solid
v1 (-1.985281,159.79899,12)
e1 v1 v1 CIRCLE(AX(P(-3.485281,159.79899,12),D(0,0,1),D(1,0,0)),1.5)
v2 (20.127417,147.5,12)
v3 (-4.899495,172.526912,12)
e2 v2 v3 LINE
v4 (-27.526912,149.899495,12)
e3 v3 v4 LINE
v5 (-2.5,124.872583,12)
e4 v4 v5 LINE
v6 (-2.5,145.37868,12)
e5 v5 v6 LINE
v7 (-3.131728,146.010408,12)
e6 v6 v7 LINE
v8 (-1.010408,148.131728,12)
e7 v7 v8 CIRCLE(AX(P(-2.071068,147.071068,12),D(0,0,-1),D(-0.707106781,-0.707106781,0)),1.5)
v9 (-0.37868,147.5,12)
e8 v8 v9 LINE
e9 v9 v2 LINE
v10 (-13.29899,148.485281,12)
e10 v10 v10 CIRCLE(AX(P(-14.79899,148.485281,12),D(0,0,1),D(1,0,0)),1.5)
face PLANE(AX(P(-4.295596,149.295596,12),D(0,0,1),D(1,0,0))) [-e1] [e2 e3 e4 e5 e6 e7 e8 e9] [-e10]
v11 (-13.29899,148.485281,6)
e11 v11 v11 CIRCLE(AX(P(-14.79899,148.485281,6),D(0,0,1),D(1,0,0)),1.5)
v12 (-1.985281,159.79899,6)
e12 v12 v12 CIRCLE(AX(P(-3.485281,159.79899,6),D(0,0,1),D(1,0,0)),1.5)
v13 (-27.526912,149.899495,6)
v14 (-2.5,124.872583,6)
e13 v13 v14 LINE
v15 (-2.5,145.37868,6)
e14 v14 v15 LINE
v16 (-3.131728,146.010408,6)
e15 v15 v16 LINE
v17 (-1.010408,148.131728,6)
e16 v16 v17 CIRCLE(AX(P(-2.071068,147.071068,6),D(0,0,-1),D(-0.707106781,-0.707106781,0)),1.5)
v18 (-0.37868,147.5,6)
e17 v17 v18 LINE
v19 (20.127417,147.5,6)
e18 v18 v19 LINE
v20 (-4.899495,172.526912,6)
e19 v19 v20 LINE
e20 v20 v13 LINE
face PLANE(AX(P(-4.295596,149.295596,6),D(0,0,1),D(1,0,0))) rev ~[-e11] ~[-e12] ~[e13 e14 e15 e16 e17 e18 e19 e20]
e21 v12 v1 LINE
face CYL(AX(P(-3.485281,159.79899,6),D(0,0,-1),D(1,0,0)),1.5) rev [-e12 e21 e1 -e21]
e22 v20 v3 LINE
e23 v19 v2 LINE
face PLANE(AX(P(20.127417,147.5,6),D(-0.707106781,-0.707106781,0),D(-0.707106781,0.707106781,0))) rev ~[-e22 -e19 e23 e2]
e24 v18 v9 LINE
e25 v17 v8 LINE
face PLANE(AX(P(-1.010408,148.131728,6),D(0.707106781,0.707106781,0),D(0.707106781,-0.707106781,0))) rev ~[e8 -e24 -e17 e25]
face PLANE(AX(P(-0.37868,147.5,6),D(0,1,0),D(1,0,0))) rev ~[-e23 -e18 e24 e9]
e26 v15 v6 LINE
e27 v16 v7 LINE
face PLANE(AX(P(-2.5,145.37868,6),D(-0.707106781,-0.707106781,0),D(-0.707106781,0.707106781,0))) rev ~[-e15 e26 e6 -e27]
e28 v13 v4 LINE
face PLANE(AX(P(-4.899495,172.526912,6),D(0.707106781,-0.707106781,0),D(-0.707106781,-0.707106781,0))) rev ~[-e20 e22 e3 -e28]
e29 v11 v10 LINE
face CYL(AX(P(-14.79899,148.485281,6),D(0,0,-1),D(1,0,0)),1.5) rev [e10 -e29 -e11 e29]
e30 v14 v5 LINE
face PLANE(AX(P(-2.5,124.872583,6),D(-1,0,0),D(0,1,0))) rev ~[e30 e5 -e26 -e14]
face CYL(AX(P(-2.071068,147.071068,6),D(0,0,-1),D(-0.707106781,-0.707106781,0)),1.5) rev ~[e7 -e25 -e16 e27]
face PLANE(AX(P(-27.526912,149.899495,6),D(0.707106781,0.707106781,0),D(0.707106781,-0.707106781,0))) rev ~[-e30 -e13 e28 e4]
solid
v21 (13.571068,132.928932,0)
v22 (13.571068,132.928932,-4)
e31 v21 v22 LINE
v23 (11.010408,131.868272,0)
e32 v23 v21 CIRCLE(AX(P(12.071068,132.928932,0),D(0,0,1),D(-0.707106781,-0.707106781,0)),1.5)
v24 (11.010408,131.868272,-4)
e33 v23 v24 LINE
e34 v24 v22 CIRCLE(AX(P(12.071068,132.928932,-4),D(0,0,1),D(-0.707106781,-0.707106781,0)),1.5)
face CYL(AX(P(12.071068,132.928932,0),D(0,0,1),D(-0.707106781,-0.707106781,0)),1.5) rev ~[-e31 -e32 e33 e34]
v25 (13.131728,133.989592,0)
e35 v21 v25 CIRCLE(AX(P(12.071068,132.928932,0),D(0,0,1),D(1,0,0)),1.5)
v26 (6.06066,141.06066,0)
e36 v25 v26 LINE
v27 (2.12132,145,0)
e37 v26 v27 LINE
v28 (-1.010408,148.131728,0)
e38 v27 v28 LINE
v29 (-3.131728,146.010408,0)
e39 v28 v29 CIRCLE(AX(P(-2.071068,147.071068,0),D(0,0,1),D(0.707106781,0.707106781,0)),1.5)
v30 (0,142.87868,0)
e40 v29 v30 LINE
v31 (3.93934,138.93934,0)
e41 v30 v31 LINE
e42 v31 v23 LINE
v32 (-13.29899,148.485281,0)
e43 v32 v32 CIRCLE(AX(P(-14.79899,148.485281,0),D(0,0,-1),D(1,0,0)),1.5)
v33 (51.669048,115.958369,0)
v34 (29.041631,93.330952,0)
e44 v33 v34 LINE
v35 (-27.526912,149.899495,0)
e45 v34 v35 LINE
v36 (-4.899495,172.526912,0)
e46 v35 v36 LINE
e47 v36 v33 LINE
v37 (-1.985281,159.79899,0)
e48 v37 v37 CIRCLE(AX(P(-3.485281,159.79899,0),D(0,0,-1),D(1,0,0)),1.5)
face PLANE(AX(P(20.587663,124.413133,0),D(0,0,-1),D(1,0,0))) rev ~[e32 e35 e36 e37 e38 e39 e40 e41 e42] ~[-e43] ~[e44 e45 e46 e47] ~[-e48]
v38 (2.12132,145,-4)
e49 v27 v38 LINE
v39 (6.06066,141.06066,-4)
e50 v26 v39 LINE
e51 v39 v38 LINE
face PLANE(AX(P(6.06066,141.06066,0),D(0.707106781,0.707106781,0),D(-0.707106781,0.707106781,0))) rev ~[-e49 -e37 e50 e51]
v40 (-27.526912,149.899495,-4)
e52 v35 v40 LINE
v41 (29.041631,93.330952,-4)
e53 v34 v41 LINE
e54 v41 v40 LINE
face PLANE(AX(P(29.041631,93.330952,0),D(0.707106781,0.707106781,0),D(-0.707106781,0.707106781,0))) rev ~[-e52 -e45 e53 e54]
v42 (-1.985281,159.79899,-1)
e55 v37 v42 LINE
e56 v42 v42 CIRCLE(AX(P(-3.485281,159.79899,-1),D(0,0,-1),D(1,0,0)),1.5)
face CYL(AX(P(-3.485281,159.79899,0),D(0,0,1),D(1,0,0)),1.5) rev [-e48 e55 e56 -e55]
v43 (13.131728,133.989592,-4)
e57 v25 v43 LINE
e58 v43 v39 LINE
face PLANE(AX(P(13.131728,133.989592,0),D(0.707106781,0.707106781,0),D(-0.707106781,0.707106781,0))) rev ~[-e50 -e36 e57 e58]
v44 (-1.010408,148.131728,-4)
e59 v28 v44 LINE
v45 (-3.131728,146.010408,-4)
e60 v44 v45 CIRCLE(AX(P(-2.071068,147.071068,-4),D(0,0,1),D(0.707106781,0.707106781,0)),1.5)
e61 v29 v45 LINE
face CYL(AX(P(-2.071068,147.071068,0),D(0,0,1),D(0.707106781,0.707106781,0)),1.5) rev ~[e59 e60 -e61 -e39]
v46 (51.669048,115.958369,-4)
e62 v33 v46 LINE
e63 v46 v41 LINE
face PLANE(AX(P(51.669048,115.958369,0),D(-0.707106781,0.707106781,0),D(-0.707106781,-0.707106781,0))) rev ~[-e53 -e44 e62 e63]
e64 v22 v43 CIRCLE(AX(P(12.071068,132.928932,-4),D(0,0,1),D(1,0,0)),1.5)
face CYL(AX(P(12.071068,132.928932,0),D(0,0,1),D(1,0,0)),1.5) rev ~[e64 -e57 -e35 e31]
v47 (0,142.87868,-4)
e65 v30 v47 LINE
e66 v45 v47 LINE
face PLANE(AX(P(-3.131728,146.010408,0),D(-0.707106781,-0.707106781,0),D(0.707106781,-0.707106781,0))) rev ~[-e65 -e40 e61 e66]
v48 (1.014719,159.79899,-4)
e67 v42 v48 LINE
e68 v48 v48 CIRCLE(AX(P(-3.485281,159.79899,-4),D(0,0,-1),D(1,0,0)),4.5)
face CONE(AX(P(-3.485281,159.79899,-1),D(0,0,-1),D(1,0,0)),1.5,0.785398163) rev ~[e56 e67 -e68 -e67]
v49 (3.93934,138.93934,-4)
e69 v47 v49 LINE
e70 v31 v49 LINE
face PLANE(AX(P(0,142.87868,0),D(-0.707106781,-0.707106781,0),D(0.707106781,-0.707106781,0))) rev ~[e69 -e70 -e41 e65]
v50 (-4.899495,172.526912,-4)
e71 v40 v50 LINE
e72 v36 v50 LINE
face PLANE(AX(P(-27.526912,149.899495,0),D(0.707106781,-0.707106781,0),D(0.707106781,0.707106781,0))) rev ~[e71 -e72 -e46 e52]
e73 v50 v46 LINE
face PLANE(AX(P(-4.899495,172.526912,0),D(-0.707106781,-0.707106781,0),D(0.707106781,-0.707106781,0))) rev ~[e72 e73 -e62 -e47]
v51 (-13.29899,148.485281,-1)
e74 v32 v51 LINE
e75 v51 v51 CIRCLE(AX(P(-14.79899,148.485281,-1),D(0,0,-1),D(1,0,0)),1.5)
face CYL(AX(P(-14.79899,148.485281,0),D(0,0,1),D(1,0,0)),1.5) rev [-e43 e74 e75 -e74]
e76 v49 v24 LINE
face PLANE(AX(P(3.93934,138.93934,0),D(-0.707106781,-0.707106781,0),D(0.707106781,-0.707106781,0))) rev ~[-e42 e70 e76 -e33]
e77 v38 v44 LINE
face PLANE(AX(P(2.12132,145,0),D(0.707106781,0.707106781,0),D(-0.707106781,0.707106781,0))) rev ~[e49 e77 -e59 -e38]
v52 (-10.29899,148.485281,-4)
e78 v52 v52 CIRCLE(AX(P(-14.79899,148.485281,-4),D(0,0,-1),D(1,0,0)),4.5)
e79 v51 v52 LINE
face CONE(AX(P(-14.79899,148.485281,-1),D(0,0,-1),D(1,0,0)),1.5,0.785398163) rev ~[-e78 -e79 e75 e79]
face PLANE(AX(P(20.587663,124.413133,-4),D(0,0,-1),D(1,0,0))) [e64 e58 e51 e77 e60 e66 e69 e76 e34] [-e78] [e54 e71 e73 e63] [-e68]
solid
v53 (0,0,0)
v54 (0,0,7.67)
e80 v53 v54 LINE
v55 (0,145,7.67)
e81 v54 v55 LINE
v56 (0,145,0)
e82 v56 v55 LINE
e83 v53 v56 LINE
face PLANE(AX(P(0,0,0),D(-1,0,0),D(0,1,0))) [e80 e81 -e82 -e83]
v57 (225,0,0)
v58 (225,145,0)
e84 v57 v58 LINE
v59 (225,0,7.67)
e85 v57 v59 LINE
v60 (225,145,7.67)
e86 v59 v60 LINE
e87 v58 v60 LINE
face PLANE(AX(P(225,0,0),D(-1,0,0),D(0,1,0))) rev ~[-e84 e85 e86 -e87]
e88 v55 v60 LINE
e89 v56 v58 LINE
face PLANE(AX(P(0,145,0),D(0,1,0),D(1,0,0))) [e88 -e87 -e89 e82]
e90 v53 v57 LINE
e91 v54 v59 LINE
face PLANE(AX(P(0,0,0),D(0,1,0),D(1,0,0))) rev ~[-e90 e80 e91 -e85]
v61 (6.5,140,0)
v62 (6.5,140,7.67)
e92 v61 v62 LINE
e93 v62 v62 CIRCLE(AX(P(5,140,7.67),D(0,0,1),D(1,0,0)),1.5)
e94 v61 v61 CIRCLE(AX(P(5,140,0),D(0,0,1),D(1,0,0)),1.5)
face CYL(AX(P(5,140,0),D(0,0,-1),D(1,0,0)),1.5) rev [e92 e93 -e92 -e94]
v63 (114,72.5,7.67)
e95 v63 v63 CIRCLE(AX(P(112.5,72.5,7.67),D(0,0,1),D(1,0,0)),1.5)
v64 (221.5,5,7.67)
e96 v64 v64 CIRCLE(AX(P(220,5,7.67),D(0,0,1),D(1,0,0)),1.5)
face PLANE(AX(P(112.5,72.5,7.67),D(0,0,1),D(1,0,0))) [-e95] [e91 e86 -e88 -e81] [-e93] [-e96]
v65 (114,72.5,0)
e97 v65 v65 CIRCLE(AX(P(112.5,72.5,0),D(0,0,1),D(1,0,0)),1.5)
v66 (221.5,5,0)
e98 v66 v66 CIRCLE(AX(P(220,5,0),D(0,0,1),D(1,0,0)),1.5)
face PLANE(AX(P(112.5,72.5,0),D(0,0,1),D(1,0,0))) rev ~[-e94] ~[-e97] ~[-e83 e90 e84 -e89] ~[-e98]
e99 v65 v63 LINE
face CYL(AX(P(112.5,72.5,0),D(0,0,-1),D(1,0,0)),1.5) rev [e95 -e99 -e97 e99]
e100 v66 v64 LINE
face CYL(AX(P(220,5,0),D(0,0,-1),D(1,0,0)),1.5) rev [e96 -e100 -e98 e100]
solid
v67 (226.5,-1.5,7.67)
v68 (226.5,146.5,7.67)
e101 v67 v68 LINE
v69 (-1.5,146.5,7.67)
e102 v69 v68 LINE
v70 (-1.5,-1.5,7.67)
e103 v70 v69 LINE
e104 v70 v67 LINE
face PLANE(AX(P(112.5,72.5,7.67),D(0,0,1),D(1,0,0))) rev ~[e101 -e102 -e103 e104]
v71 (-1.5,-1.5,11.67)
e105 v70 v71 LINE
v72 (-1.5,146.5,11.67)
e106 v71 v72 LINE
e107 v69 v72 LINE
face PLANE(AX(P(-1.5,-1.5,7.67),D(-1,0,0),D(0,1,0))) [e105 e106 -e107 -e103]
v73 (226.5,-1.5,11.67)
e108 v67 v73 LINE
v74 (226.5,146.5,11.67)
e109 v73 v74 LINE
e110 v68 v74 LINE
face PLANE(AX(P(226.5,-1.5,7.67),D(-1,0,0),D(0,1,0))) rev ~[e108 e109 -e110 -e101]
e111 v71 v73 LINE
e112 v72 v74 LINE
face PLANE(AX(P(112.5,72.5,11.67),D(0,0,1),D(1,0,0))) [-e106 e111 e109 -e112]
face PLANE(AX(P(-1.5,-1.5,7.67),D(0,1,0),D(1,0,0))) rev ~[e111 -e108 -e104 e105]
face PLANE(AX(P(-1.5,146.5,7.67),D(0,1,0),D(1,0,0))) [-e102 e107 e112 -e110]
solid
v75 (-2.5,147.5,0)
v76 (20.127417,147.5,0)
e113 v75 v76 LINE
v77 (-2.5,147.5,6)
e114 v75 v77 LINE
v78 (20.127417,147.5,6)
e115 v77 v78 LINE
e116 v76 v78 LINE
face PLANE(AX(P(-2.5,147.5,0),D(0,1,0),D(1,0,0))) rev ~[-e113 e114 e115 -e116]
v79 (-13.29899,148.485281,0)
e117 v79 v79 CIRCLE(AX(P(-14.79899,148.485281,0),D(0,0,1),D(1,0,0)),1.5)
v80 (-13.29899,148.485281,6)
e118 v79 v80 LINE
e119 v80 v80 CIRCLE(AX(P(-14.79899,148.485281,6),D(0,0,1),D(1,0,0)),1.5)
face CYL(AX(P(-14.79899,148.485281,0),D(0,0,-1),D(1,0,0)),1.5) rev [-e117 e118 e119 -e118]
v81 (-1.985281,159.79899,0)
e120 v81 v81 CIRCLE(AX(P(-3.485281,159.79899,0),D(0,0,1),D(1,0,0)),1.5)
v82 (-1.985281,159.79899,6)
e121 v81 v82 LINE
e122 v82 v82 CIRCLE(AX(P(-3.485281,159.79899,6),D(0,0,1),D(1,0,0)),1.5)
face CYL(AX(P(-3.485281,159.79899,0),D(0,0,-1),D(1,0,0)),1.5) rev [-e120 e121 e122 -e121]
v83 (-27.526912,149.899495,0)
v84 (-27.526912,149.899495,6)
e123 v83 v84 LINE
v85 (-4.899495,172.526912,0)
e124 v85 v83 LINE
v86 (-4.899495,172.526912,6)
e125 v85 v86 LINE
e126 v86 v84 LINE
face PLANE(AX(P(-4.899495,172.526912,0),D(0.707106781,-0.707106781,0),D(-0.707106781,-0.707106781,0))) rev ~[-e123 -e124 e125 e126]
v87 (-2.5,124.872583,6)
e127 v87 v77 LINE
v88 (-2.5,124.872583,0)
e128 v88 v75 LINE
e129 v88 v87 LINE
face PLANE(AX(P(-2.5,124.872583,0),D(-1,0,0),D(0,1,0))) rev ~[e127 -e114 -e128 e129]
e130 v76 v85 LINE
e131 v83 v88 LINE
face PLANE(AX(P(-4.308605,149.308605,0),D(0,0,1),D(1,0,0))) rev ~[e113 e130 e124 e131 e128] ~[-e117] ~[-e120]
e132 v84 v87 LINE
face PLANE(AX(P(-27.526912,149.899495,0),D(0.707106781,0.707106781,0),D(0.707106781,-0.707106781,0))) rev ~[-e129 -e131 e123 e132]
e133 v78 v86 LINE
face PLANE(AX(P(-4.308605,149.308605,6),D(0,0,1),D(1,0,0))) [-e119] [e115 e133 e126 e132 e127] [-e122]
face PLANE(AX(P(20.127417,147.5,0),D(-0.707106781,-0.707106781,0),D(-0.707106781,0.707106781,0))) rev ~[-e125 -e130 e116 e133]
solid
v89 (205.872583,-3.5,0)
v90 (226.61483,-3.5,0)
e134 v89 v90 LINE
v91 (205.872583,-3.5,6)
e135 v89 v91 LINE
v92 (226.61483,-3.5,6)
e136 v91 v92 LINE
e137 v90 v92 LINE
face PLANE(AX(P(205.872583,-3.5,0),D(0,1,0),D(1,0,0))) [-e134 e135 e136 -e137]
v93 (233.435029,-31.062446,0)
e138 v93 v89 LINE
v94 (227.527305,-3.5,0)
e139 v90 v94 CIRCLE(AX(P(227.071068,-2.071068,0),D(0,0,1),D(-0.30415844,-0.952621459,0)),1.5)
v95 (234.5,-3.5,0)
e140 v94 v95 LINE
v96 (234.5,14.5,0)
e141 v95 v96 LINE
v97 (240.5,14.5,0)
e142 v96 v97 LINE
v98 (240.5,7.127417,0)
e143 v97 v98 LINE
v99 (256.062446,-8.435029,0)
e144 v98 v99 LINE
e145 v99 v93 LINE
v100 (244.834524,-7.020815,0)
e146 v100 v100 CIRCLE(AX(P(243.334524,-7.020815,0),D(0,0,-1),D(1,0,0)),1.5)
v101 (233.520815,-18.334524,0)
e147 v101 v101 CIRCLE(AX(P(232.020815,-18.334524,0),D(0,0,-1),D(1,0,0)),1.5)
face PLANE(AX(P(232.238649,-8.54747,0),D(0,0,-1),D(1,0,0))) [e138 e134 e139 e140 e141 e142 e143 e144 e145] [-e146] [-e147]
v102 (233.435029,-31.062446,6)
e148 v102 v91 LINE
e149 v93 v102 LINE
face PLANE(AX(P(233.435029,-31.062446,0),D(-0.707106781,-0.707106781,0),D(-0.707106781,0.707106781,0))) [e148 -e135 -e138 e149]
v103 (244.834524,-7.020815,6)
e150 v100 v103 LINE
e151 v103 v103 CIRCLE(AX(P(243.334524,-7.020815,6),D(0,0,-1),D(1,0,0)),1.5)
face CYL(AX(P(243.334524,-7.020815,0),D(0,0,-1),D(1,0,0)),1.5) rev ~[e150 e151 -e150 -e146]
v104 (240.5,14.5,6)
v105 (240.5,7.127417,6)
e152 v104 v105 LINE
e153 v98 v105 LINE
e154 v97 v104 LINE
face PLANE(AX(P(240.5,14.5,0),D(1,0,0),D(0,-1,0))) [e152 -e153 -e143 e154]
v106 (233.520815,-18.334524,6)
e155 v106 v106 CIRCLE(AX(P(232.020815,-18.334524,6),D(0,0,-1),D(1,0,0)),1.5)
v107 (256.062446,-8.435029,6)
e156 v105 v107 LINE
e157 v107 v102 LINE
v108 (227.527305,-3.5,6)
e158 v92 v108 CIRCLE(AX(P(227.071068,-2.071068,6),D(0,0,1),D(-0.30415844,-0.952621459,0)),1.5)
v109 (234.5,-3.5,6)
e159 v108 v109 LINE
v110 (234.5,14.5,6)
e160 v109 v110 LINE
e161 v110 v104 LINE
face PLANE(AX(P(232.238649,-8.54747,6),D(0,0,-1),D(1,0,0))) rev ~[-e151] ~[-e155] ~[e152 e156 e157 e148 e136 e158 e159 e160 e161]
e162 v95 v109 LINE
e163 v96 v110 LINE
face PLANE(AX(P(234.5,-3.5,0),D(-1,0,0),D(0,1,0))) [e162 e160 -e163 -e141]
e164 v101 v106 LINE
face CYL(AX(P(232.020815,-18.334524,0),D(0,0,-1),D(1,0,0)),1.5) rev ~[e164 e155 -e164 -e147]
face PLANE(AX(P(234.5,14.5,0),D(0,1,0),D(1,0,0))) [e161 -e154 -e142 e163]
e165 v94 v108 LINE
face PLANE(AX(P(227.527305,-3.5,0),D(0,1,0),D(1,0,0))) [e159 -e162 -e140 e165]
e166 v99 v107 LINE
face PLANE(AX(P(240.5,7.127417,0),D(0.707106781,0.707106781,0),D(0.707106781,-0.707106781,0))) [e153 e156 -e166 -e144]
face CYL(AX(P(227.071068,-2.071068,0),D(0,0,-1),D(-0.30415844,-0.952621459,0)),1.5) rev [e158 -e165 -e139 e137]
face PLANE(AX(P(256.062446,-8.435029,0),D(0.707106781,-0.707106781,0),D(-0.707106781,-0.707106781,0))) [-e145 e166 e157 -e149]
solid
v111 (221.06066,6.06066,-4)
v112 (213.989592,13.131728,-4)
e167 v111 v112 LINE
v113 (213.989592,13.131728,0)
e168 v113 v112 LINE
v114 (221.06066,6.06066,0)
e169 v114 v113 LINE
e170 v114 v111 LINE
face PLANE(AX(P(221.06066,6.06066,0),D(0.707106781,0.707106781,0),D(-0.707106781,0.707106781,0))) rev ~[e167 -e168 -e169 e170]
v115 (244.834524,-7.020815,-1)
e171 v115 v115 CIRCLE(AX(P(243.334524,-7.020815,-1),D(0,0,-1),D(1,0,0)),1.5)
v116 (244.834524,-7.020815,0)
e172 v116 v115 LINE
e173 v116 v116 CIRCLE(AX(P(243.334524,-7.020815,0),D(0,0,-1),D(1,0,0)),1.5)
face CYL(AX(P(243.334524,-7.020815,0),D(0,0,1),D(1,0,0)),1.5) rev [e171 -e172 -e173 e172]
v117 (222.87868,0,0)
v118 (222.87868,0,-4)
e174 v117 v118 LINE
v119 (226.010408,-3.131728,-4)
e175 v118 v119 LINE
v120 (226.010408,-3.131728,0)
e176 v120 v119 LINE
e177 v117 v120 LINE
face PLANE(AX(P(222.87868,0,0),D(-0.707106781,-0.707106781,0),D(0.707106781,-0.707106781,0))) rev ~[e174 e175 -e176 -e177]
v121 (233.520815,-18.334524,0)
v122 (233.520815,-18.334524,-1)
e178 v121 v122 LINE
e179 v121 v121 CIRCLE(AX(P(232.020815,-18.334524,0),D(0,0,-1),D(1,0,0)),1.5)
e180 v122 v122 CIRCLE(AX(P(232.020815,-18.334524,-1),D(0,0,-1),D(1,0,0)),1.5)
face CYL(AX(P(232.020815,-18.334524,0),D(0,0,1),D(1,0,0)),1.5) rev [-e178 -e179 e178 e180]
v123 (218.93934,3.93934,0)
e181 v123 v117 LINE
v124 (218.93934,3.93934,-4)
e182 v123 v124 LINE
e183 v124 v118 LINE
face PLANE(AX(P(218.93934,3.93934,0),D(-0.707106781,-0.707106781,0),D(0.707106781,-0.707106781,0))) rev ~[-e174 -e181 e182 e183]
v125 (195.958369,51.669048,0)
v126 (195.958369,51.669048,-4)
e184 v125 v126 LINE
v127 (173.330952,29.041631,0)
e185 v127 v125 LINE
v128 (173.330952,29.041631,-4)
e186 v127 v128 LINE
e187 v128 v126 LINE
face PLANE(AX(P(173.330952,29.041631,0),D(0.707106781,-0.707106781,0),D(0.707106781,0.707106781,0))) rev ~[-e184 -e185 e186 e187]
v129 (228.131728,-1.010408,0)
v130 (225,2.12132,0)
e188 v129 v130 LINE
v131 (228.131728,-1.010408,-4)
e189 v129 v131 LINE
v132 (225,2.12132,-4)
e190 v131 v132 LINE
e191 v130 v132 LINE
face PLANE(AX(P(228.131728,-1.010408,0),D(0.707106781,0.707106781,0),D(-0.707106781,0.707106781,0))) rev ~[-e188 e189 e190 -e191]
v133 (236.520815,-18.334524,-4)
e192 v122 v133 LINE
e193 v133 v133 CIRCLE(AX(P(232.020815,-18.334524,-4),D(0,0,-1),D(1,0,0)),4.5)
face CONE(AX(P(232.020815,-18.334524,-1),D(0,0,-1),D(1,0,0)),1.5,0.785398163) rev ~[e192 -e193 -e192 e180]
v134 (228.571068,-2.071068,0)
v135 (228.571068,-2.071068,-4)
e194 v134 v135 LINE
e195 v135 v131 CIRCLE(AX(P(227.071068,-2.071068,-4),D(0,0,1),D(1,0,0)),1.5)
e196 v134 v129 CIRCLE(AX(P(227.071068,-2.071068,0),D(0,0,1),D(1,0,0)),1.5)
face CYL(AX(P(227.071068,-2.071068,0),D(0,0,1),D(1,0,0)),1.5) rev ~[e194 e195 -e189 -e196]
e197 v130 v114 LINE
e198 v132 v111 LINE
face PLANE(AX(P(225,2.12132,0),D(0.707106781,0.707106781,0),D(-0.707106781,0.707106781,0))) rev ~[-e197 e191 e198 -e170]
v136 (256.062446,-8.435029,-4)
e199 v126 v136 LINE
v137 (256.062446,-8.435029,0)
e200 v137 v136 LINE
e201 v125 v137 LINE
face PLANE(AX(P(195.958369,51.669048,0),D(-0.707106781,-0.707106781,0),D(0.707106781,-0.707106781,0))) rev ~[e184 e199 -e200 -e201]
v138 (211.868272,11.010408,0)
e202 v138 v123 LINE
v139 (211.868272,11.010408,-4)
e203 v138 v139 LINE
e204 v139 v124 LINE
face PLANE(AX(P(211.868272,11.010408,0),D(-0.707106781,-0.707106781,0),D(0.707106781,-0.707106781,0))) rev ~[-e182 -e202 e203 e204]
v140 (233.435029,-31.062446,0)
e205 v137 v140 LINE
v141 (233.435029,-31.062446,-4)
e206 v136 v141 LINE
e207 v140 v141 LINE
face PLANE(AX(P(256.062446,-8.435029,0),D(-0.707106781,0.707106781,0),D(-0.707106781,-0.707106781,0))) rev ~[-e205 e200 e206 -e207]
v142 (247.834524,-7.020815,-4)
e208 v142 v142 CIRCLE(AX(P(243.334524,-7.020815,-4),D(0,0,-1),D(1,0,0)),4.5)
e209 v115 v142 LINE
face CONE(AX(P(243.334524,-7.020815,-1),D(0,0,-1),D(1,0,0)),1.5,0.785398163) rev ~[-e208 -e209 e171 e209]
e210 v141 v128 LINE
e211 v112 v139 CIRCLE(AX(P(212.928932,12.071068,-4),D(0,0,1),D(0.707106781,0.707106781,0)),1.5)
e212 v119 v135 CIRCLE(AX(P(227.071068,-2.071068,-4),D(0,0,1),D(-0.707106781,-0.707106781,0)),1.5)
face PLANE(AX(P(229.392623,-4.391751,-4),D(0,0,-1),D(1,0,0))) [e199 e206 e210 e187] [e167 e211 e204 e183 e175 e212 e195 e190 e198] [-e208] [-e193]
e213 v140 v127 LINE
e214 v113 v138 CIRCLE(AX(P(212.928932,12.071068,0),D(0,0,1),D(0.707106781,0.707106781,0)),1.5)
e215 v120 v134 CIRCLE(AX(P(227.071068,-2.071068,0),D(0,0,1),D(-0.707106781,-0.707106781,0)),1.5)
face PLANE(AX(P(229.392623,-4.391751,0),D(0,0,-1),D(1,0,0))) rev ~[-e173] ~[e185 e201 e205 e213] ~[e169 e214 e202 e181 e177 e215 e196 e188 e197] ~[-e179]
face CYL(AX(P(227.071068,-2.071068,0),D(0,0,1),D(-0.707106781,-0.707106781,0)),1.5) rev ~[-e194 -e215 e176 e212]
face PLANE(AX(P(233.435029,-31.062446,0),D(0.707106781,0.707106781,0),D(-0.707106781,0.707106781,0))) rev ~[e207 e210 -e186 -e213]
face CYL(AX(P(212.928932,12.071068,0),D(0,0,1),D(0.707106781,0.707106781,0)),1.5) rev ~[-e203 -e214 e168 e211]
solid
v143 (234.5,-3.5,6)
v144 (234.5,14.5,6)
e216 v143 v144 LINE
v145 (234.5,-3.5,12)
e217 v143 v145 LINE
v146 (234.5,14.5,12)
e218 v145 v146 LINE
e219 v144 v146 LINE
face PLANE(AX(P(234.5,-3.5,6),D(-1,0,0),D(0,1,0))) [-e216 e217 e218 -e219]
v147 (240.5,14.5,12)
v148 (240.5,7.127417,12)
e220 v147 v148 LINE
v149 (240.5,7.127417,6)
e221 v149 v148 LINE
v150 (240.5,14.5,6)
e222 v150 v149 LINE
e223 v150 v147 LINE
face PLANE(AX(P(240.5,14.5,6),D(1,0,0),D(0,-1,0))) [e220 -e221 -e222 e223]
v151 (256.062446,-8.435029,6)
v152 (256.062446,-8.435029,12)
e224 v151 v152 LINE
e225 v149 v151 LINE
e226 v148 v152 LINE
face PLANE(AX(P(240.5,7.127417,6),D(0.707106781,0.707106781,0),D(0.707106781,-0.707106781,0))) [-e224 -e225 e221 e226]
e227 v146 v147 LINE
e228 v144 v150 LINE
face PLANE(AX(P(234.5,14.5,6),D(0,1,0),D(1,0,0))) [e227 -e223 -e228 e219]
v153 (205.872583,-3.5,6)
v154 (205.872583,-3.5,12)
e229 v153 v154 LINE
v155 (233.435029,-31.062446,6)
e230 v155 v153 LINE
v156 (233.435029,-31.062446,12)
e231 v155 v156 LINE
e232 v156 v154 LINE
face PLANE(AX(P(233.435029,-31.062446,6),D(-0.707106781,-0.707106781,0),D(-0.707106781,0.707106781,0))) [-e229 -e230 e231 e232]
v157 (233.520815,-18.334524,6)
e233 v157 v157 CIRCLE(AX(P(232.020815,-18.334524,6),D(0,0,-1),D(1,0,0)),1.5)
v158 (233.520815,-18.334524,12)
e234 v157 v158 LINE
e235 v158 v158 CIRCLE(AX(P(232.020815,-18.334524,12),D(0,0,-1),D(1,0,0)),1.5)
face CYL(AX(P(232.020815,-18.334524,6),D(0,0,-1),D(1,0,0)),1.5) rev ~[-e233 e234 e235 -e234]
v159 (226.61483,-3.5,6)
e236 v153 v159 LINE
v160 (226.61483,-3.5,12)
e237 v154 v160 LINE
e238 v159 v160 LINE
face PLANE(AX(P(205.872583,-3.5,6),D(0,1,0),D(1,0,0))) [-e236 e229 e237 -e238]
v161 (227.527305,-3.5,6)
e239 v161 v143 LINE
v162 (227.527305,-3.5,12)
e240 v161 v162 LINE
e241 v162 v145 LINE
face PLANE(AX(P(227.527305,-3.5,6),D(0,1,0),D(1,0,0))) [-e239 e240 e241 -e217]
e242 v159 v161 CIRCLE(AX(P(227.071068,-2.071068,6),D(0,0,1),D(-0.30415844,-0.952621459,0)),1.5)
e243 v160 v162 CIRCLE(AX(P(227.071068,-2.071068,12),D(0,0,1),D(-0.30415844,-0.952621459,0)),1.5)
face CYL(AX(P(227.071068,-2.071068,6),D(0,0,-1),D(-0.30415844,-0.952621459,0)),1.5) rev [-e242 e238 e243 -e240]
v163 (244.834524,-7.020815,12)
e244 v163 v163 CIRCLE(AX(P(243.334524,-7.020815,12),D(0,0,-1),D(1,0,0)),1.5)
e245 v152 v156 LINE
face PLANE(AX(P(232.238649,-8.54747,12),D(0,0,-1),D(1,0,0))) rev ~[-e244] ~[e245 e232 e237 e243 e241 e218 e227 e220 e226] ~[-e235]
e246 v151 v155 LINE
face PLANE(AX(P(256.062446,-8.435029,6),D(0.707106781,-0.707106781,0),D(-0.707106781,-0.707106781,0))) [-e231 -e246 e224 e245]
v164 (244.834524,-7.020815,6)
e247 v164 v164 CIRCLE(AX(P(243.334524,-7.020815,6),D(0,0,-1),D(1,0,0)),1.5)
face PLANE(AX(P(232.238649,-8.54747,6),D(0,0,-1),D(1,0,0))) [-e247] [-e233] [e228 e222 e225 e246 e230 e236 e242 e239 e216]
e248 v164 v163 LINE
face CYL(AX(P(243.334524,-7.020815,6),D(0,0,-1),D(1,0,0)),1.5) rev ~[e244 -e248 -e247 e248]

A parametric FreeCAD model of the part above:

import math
import FreeCAD as App
import Part
import Sketcher

V = App.Vector
Q = App.Units.Quantity


def edges_at(feature, points):
    """Names of the edges that pass closest to the given points."""
    edges = feature.Shape.Edges
    near = lambda p: min(range(len(edges)), key=lambda i: edges[i].distToShape(Part.Vertex(*p))[0])
    return sorted({f"Edge{near(p) + 1}" for p in points})

doc = App.newDocument("Part")
body = doc.addObject("PartDesign::Body", "Body")

# Sketch on XY plane
sketch1 = body.newObject("Sketcher::SketchObject", "Sketch")
sketch1.AttachmentSupport = (doc.getObject("XY_Plane"), [""])
sketch1.MapMode = "FlatFace"
sketch1.addGeometry(Part.LineSegment(V(0, 145, 0), V(0, 0, 0)), False)
sketch1.addGeometry(Part.LineSegment(V(0, 0, 0), V(225, 0, 0)), False)
sketch1.addGeometry(Part.LineSegment(V(225, 0, 0), V(225, 145, 0)), False)
sketch1.addGeometry(Part.LineSegment(V(225, 145, 0), V(0, 145, 0)), False)
sketch1.addGeometry(Part.Circle(V(220, 5, 0), V(0, 0, 1), 1.5), False)
sketch1.addGeometry(Part.Circle(V(5, 140, 0), V(0, 0, 1), 1.5), False)
sketch1.addGeometry(Part.Circle(V(112.5, 72.5, 0), V(0, 0, 1), 1.5), False)
sketch1.addConstraint(Sketcher.Constraint("Coincident", 0, 2, 1, 1))
sketch1.addConstraint(Sketcher.Constraint("Coincident", 1, 2, 2, 1))
sketch1.addConstraint(Sketcher.Constraint("Coincident", 2, 2, 3, 1))
sketch1.addConstraint(Sketcher.Constraint("Coincident", 3, 2, 0, 1))
sketch1.addConstraint(Sketcher.Constraint("Vertical", 0))
sketch1.addConstraint(Sketcher.Constraint("Horizontal", 1))
sketch1.addConstraint(Sketcher.Constraint("Vertical", 2))
sketch1.addConstraint(Sketcher.Constraint("Horizontal", 3))
sketch1.addConstraint(Sketcher.Constraint("Coincident", 0, 2, -1, 1))
sketch1.addConstraint(Sketcher.Constraint("Equal", 4, 5))
sketch1.addConstraint(Sketcher.Constraint("Equal", 5, 6))
sketch1.addConstraint(Sketcher.Constraint("Diameter", 4, Q("3 mm")))
sketch1.addConstraint(Sketcher.Constraint("DistanceX", 1, 1, 1, 2, Q("225 mm")))
sketch1.addConstraint(Sketcher.Constraint("DistanceY", 0, 2, 0, 1, Q("145 mm")))
sketch1.addConstraint(Sketcher.Constraint("DistanceX", -1, 1, 4, 3, Q("220 mm")))
sketch1.addConstraint(Sketcher.Constraint("DistanceY", -1, 1, 4, 3, Q("5 mm")))
sketch1.addConstraint(Sketcher.Constraint("DistanceX", -1, 1, 5, 3, Q("5 mm")))
sketch1.addConstraint(Sketcher.Constraint("DistanceY", -1, 1, 5, 3, Q("140 mm")))
sketch1.addConstraint(Sketcher.Constraint("DistanceX", -1, 1, 6, 3, Q("112.5 mm")))
sketch1.addConstraint(Sketcher.Constraint("DistanceY", -1, 1, 6, 3, Q("72.5 mm")))
pad1 = body.newObject("PartDesign::Pad", "Pad")
pad1.Profile = sketch1
pad1.Length = 7.67
body2 = doc.addObject("PartDesign::Body", "Body001")

# Sketch on XY plane
sketch2 = body2.newObject("Sketcher::SketchObject", "Sketch001")
sketch2.AttachmentSupport = (doc.getObject("XY_Plane001"), [""])
sketch2.MapMode = "FlatFace"
sketch2.AttachmentOffset = App.Placement(V(0, 0, 7.67), App.Rotation())
sketch2.addGeometry(Part.LineSegment(V(-2, 146, 0), V(-2, -2, 0)), False)
sketch2.addGeometry(Part.LineSegment(V(-2, -2, 0), V(226, -2, 0)), False)
sketch2.addGeometry(Part.LineSegment(V(226, -2, 0), V(226, 146, 0)), False)
sketch2.addGeometry(Part.LineSegment(V(226, 146, 0), V(-2, 146, 0)), False)
sketch2.addConstraint(Sketcher.Constraint("Coincident", 0, 2, 1, 1))
sketch2.addConstraint(Sketcher.Constraint("Coincident", 1, 2, 2, 1))
sketch2.addConstraint(Sketcher.Constraint("Coincident", 2, 2, 3, 1))
sketch2.addConstraint(Sketcher.Constraint("Coincident", 3, 2, 0, 1))
sketch2.addConstraint(Sketcher.Constraint("Vertical", 0))
sketch2.addConstraint(Sketcher.Constraint("Horizontal", 1))
sketch2.addConstraint(Sketcher.Constraint("Vertical", 2))
sketch2.addConstraint(Sketcher.Constraint("Horizontal", 3))
sketch2.addConstraint(Sketcher.Constraint("DistanceX", 1, 1, 1, 2, Q("228 mm")))
sketch2.addConstraint(Sketcher.Constraint("DistanceY", 0, 2, 0, 1, Q("148 mm")))
sketch2.addConstraint(Sketcher.Constraint("DistanceX", 0, 2, -1, 1, Q("1.5 mm")))
sketch2.addConstraint(Sketcher.Constraint("DistanceY", 0, 2, -1, 1, Q("1.5 mm")))
pad2 = body2.newObject("PartDesign::Pad", "Pad001")
pad2.Profile = sketch2
pad2.Length = 4
body3 = doc.addObject("PartDesign::Body", "Body002")

# Sketch on XY plane
sketch3 = body3.newObject("Sketcher::SketchObject", "Sketch002")
sketch3.AttachmentSupport = (doc.getObject("XY_Plane002"), [""])
sketch3.MapMode = "FlatFace"
sketch3.addGeometry(Part.LineSegment(V(51.7, 116, 0), V(29, 93.3, 0)), False)
sketch3.addGeometry(Part.LineSegment(V(29, 93.3, 0), V(-27.5, 149.9, 0)), False)
sketch3.addGeometry(Part.LineSegment(V(-27.5, 149.9, 0), V(-4.9, 172.5, 0)), False)
sketch3.addGeometry(Part.LineSegment(V(-4.9, 172.5, 0), V(51.7, 116, 0)), False)
sketch3.addGeometry(Part.Circle(V(-3.5, 159.8, 0), V(0, 0, 1), 1.5), False)
sketch3.addGeometry(Part.Circle(V(-14.8, 148.5, 0), V(0, 0, 1), 1.5), False)
sketch3.addGeometry(Part.LineSegment(V(0, 142.9, 0), V(3.9, 138.9, 0)), False)
sketch3.addGeometry(Part.LineSegment(V(3.9, 138.9, 0), V(11, 131.9, 0)), False)
sketch3.addGeometry(Part.ArcOfCircle(Part.Circle(V(12.1, 132.9, 0), V(0, 0, 1), 1.5), math.radians(-135), math.radians(0)), False)
sketch3.addGeometry(Part.ArcOfCircle(Part.Circle(V(12.1, 132.9, 0), V(0, 0, 1), 1.5), math.radians(0), math.radians(45)), False)
sketch3.addGeometry(Part.LineSegment(V(13.1, 134, 0), V(6.1, 141.1, 0)), False)
sketch3.addGeometry(Part.LineSegment(V(6.1, 141.1, 0), V(2.1, 145, 0)), False)
sketch3.addGeometry(Part.LineSegment(V(2.1, 145, 0), V(-1, 148.1, 0)), False)
sketch3.addGeometry(Part.ArcOfCircle(Part.Circle(V(-2.1, 147.1, 0), V(0, 0, 1), 1.5), math.radians(45), math.radians(225)), False)
sketch3.addGeometry(Part.LineSegment(V(-3.1, 146, 0), V(0, 142.9, 0)), False)
sketch3.addConstraint(Sketcher.Constraint("Coincident", 0, 2, 1, 1))
sketch3.addConstraint(Sketcher.Constraint("Coincident", 1, 2, 2, 1))
sketch3.addConstraint(Sketcher.Constraint("Coincident", 2, 2, 3, 1))
sketch3.addConstraint(Sketcher.Constraint("Coincident", 3, 2, 0, 1))
sketch3.addConstraint(Sketcher.Constraint("Coincident", 6, 2, 7, 1))
sketch3.addConstraint(Sketcher.Constraint("Tangent", 7, 2, 8, 1))
sketch3.addConstraint(Sketcher.Constraint("Tangent", 8, 2, 9, 1))
sketch3.addConstraint(Sketcher.Constraint("Tangent", 9, 2, 10, 1))
sketch3.addConstraint(Sketcher.Constraint("Coincident", 10, 2, 11, 1))
sketch3.addConstraint(Sketcher.Constraint("Coincident", 11, 2, 12, 1))
sketch3.addConstraint(Sketcher.Constraint("Tangent", 12, 2, 13, 1))
sketch3.addConstraint(Sketcher.Constraint("Tangent", 13, 2, 14, 1))
sketch3.addConstraint(Sketcher.Constraint("Coincident", 14, 2, 6, 1))
sketch3.addConstraint(Sketcher.Constraint("Equal", 4, 5))
sketch3.addConstraint(Sketcher.Constraint("Equal", 5, 8))
sketch3.addConstraint(Sketcher.Constraint("Equal", 8, 9))
sketch3.addConstraint(Sketcher.Constraint("Equal", 9, 13))
sketch3.addConstraint(Sketcher.Constraint("PointOnObject", 14, 2, -2))
sketch3.addConstraint(Sketcher.Constraint("Perpendicular", 0, 1))
sketch3.addConstraint(Sketcher.Constraint("Perpendicular", 1, 2))
sketch3.addConstraint(Sketcher.Constraint("Perpendicular", 2, 3))
sketch3.addConstraint(Sketcher.Constraint("Parallel", 3, 6))
sketch3.addConstraint(Sketcher.Constraint("Parallel", 6, 7))
sketch3.addConstraint(Sketcher.Constraint("Parallel", 7, 10))
sketch3.addConstraint(Sketcher.Constraint("Parallel", 10, 11))
sketch3.addConstraint(Sketcher.Constraint("Parallel", 11, 12))
sketch3.addConstraint(Sketcher.Constraint("Horizontal", 9, 3, 8, 2))
sketch3.addConstraint(Sketcher.Constraint("Equal", 7, 10))
sketch3.addConstraint(Sketcher.Constraint("Equal", 6, 11))
sketch3.addConstraint(Sketcher.Constraint("Diameter", 4, Q("3 mm")))
sketch3.addConstraint(Sketcher.Constraint("Angle", 0, Q("-135 deg")))
sketch3.addConstraint(Sketcher.Constraint("Distance", 0, Q("32 mm")))
sketch3.addConstraint(Sketcher.Constraint("Distance", 1, Q("80 mm")))
sketch3.addConstraint(Sketcher.Constraint("Distance", 7, Q("10 mm")))
sketch3.addConstraint(Sketcher.Constraint("DistanceY", -1, 1, 11, 2, Q("145 mm")))
sketch3.addConstraint(Sketcher.Constraint("DistanceX", 13, 3, 0, 2, Q("31.112698 mm")))
sketch3.addConstraint(Sketcher.Constraint("DistanceY", 3, 2, 13, 3, Q("31.112698 mm")))
sketch3.addConstraint(Sketcher.Constraint("DistanceX", 4, 3, -1, 1, Q("3.485281 mm")))
sketch3.addConstraint(Sketcher.Constraint("DistanceY", -1, 1, 4, 3, Q("159.79899 mm")))
sketch3.addConstraint(Sketcher.Constraint("DistanceX", 5, 3, -1, 1, Q("14.79899 mm")))
sketch3.addConstraint(Sketcher.Constraint("DistanceY", -1, 1, 5, 3, Q("148.485281 mm")))
sketch3.addConstraint(Sketcher.Constraint("DistanceX", -1, 1, 0, 2, Q("29.041631 mm")))
sketch3.addConstraint(Sketcher.Constraint("DistanceX", -1, 1, 6, 2, Q("3.93934 mm")))
pad3 = body3.newObject("PartDesign::Pad", "Pad002")
pad3.Profile = sketch3
pad3.Length = 4
pad3.Reversed = True
doc.recompute()

chamfer = body3.newObject("PartDesign::Chamfer", "Chamfer")
chamfer.Base = (pad3, edges_at(pad3, [(-16.299, 148.485, -4), (-4.985, 159.799, -4)]))
chamfer.Size = 3
body4 = doc.addObject("PartDesign::Body", "Body003")

# Sketch on XY plane
sketch4 = body4.newObject("Sketcher::SketchObject", "Sketch003")
sketch4.AttachmentSupport = (doc.getObject("XY_Plane003"), [""])
sketch4.MapMode = "FlatFace"
sketch4.addGeometry(Part.LineSegment(V(256.1, -8.4, 0), V(233.4, -31.1, 0)), False)
sketch4.addGeometry(Part.LineSegment(V(233.4, -31.1, 0), V(173.3, 29, 0)), False)
sketch4.addGeometry(Part.LineSegment(V(173.3, 29, 0), V(196, 51.7, 0)), False)
sketch4.addGeometry(Part.LineSegment(V(196, 51.7, 0), V(256.1, -8.4, 0)), False)
sketch4.addGeometry(Part.LineSegment(V(228.1, -1, 0), V(225, 2.1, 0)), False)
sketch4.addGeometry(Part.LineSegment(V(225, 2.1, 0), V(221.1, 6.1, 0)), False)
sketch4.addGeometry(Part.LineSegment(V(221.1, 6.1, 0), V(214, 13.1, 0)), False)
sketch4.addGeometry(Part.ArcOfCircle(Part.Circle(V(212.9, 12.1, 0), V(0, 0, 1), 1.5), math.radians(45), math.radians(225)), False)
sketch4.addGeometry(Part.LineSegment(V(211.9, 11, 0), V(218.9, 3.9, 0)), False)
sketch4.addGeometry(Part.LineSegment(V(218.9, 3.9, 0), V(222.9, 0, 0)), False)
sketch4.addGeometry(Part.LineSegment(V(222.9, 0, 0), V(226, -3.1, 0)), False)
sketch4.addGeometry(Part.ArcOfCircle(Part.Circle(V(227.1, -2.1, 0), V(0, 0, 1), 1.5), math.radians(-135), math.radians(0)), False)
sketch4.addGeometry(Part.ArcOfCircle(Part.Circle(V(227.1, -2.1, 0), V(0, 0, 1), 1.5), math.radians(0), math.radians(45)), False)
sketch4.addGeometry(Part.Circle(V(243.3, -7, 0), V(0, 0, 1), 1.5), False)
sketch4.addGeometry(Part.Circle(V(232, -18.3, 0), V(0, 0, 1), 1.5), False)
sketch4.addConstraint(Sketcher.Constraint("Coincident", 0, 2, 1, 1))
sketch4.addConstraint(Sketcher.Constraint("Coincident", 1, 2, 2, 1))
sketch4.addConstraint(Sketcher.Constraint("Coincident", 2, 2, 3, 1))
sketch4.addConstraint(Sketcher.Constraint("Coincident", 3, 2, 0, 1))
sketch4.addConstraint(Sketcher.Constraint("Coincident", 4, 2, 5, 1))
sketch4.addConstraint(Sketcher.Constraint("Coincident", 5, 2, 6, 1))
sketch4.addConstraint(Sketcher.Constraint("Tangent", 6, 2, 7, 1))
sketch4.addConstraint(Sketcher.Constraint("Tangent", 7, 2, 8, 1))
sketch4.addConstraint(Sketcher.Constraint("Coincident", 8, 2, 9, 1))
sketch4.addConstraint(Sketcher.Constraint("Coincident", 9, 2, 10, 1))
sketch4.addConstraint(Sketcher.Constraint("Tangent", 10, 2, 11, 1))
sketch4.addConstraint(Sketcher.Constraint("Tangent", 11, 2, 12, 1))
sketch4.addConstraint(Sketcher.Constraint("Tangent", 12, 2, 4, 1))
sketch4.addConstraint(Sketcher.Constraint("Equal", 7, 11))
sketch4.addConstraint(Sketcher.Constraint("Equal", 11, 12))
sketch4.addConstraint(Sketcher.Constraint("Equal", 12, 13))
sketch4.addConstraint(Sketcher.Constraint("Equal", 13, 14))
sketch4.addConstraint(Sketcher.Constraint("PointOnObject", 9, 2, -1))
sketch4.addConstraint(Sketcher.Constraint("Perpendicular", 0, 1))
sketch4.addConstraint(Sketcher.Constraint("Perpendicular", 1, 2))
sketch4.addConstraint(Sketcher.Constraint("Perpendicular", 2, 3))
sketch4.addConstraint(Sketcher.Constraint("Parallel", 3, 4))
sketch4.addConstraint(Sketcher.Constraint("Parallel", 4, 5))
sketch4.addConstraint(Sketcher.Constraint("Parallel", 5, 6))
sketch4.addConstraint(Sketcher.Constraint("Parallel", 6, 8))
sketch4.addConstraint(Sketcher.Constraint("Parallel", 8, 9))
sketch4.addConstraint(Sketcher.Constraint("Horizontal", 12, 3, 11, 2))
sketch4.addConstraint(Sketcher.Constraint("Equal", 6, 8))
sketch4.addConstraint(Sketcher.Constraint("Equal", 5, 9))
sketch4.addConstraint(Sketcher.Constraint("Diameter", 13, Q("3 mm")))
sketch4.addConstraint(Sketcher.Constraint("Angle", 0, Q("-135 deg")))
sketch4.addConstraint(Sketcher.Constraint("Distance", 0, Q("32 mm")))
sketch4.addConstraint(Sketcher.Constraint("Distance", 1, Q("85 mm")))
sketch4.addConstraint(Sketcher.Constraint("Distance", 6, Q("10 mm")))
sketch4.addConstraint(Sketcher.Constraint("DistanceX", -1, 1, 4, 2, Q("225 mm")))
sketch4.addConstraint(Sketcher.Constraint("DistanceY", 11, 3, 1, 2, Q("31.112698 mm")))
sketch4.addConstraint(Sketcher.Constraint("DistanceX", 2, 2, 11, 3, Q("31.112698 mm")))
sketch4.addConstraint(Sketcher.Constraint("DistanceX", -1, 1, 0, 2, Q("233.435029 mm")))
sketch4.addConstraint(Sketcher.Constraint("DistanceX", -1, 1, 5, 2, Q("221.06066 mm")))
sketch4.addConstraint(Sketcher.Constraint("DistanceX", 7, 3, 13, 3, Q("30.405592 mm")))
sketch4.addConstraint(Sketcher.Constraint("DistanceX", 14, 3, 13, 3, Q("11.313708 mm")))
sketch4.addConstraint(Sketcher.Constraint("DistanceY", 14, 3, 13, 3, Q("11.313708 mm")))
sketch4.addConstraint(Sketcher.Constraint("DistanceY", 14, 3, 7, 3, Q("30.405592 mm")))
pad4 = body4.newObject("PartDesign::Pad", "Pad003")
pad4.Profile = sketch4
pad4.Length = 4
pad4.Reversed = True
doc.recompute()

chamfer2 = body4.newObject("PartDesign::Chamfer", "Chamfer001")
chamfer2.Base = (pad4, edges_at(pad4, [(230.521, -18.335, -4), (241.835, -7.021, -4)]))
chamfer2.Size = 3
body5 = doc.addObject("PartDesign::Body", "Body004")

# Sketch on XY plane
sketch5 = body5.newObject("Sketcher::SketchObject", "Sketch004")
sketch5.AttachmentSupport = (doc.getObject("XY_Plane004"), [""])
sketch5.MapMode = "FlatFace"
sketch5.addGeometry(Part.LineSegment(V(20.1, 147.5, 0), V(-4.9, 172.5, 0)), False)
sketch5.addGeometry(Part.LineSegment(V(-4.9, 172.5, 0), V(-27.5, 149.9, 0)), False)
sketch5.addGeometry(Part.LineSegment(V(-27.5, 149.9, 0), V(-2.5, 124.9, 0)), False)
sketch5.addGeometry(Part.LineSegment(V(-2.5, 124.9, 0), V(-2.5, 147.5, 0)), False)
sketch5.addGeometry(Part.LineSegment(V(-2.5, 147.5, 0), V(20.1, 147.5, 0)), False)
sketch5.addGeometry(Part.Circle(V(-14.8, 148.5, 0), V(0, 0, 1), 1.5), False)
sketch5.addGeometry(Part.Circle(V(-3.5, 159.8, 0), V(0, 0, 1), 1.5), False)
sketch5.addConstraint(Sketcher.Constraint("Coincident", 0, 2, 1, 1))
sketch5.addConstraint(Sketcher.Constraint("Coincident", 1, 2, 2, 1))
sketch5.addConstraint(Sketcher.Constraint("Coincident", 2, 2, 3, 1))
sketch5.addConstraint(Sketcher.Constraint("Coincident", 3, 2, 4, 1))
sketch5.addConstraint(Sketcher.Constraint("Coincident", 4, 2, 0, 1))
sketch5.addConstraint(Sketcher.Constraint("Vertical", 3))
sketch5.addConstraint(Sketcher.Constraint("Horizontal", 4))
sketch5.addConstraint(Sketcher.Constraint("Equal", 5, 6))
sketch5.addConstraint(Sketcher.Constraint("Perpendicular", 0, 1))
sketch5.addConstraint(Sketcher.Constraint("Perpendicular", 1, 2))
sketch5.addConstraint(Sketcher.Constraint("Equal", 4, 3))
sketch5.addConstraint(Sketcher.Constraint("Equal", 0, 2))
sketch5.addConstraint(Sketcher.Constraint("Diameter", 5, Q("3 mm")))
sketch5.addConstraint(Sketcher.Constraint("Distance", 1, Q("32 mm")))
sketch5.addConstraint(Sketcher.Constraint("DistanceX", 2, 2, -1, 1, Q("2.5 mm")))
sketch5.addConstraint(Sketcher.Constraint("DistanceY", -1, 1, 3, 2, Q("147.5 mm")))
sketch5.addConstraint(Sketcher.Constraint("Distance", 0, Q("35.393398 mm")))
sketch5.addConstraint(Sketcher.Constraint("DistanceY", 2, 2, 5, 3, Q("23.612698 mm")))
sketch5.addConstraint(Sketcher.Constraint("DistanceX", 6, 3, 4, 2, Q("23.612698 mm")))
sketch5.addConstraint(Sketcher.Constraint("DistanceX", 5, 3, -1, 1, Q("14.79899 mm")))
sketch5.addConstraint(Sketcher.Constraint("DistanceY", -1, 1, 6, 3, Q("159.79899 mm")))
pad5 = body5.newObject("PartDesign::Pad", "Pad004")
pad5.Profile = sketch5
pad5.Length = 6
body6 = doc.addObject("PartDesign::Body", "Body005")

# Sketch on XY plane
sketch6 = body6.newObject("Sketcher::SketchObject", "Sketch005")
sketch6.AttachmentSupport = (doc.getObject("XY_Plane005"), [""])
sketch6.MapMode = "FlatFace"
sketch6.AttachmentOffset = App.Placement(V(0, 0, 6), App.Rotation())
sketch6.addGeometry(Part.LineSegment(V(20.1, 147.5, 0), V(-4.9, 172.5, 0)), False)
sketch6.addGeometry(Part.LineSegment(V(-4.9, 172.5, 0), V(-27.5, 149.9, 0)), False)
sketch6.addGeometry(Part.LineSegment(V(-27.5, 149.9, 0), V(-2.5, 124.9, 0)), False)
sketch6.addGeometry(Part.LineSegment(V(-2.5, 124.9, 0), V(-2.5, 145.4, 0)), False)
sketch6.addGeometry(Part.LineSegment(V(-2.5, 145.4, 0), V(-3.1, 146, 0)), False)
sketch6.addGeometry(Part.ArcOfCircle(Part.Circle(V(-2.1, 147.1, 0), V(0, 0, 1), 1.5), math.radians(45), math.radians(225)), False)
sketch6.addGeometry(Part.LineSegment(V(-1, 148.1, 0), V(-0.4, 147.5, 0)), False)
sketch6.addGeometry(Part.LineSegment(V(-0.4, 147.5, 0), V(20.1, 147.5, 0)), False)
sketch6.addGeometry(Part.Circle(V(-14.8, 148.5, 0), V(0, 0, 1), 1.5), False)
sketch6.addGeometry(Part.Circle(V(-3.5, 159.8, 0), V(0, 0, 1), 1.5), False)
sketch6.addConstraint(Sketcher.Constraint("Coincident", 0, 2, 1, 1))
sketch6.addConstraint(Sketcher.Constraint("Coincident", 1, 2, 2, 1))
sketch6.addConstraint(Sketcher.Constraint("Coincident", 2, 2, 3, 1))
sketch6.addConstraint(Sketcher.Constraint("Coincident", 3, 2, 4, 1))
sketch6.addConstraint(Sketcher.Constraint("Tangent", 4, 2, 5, 2))
sketch6.addConstraint(Sketcher.Constraint("Tangent", 5, 1, 6, 1))
sketch6.addConstraint(Sketcher.Constraint("Coincident", 6, 2, 7, 1))
sketch6.addConstraint(Sketcher.Constraint("Coincident", 7, 2, 0, 1))
sketch6.addConstraint(Sketcher.Constraint("Vertical", 3))
sketch6.addConstraint(Sketcher.Constraint("Horizontal", 7))
sketch6.addConstraint(Sketcher.Constraint("Equal", 5, 8))
sketch6.addConstraint(Sketcher.Constraint("Equal", 8, 9))
sketch6.addConstraint(Sketcher.Constraint("Perpendicular", 0, 1))
sketch6.addConstraint(Sketcher.Constraint("Perpendicular", 1, 2))
sketch6.addConstraint(Sketcher.Constraint("Parallel", 2, 4))
sketch6.addConstraint(Sketcher.Constraint("Parallel", 4, 6))
sketch6.addConstraint(Sketcher.Constraint("Equal", 7, 3))
sketch6.addConstraint(Sketcher.Constraint("Equal", 0, 2))
sketch6.addConstraint(Sketcher.Constraint("Equal", 4, 6))
sketch6.addConstraint(Sketcher.Constraint("Diameter", 8, Q("3 mm")))
sketch6.addConstraint(Sketcher.Constraint("Distance", 1, Q("32 mm")))
sketch6.addConstraint(Sketcher.Constraint("DistanceX", 2, 2, -1, 1, Q("2.5 mm")))
sketch6.addConstraint(Sketcher.Constraint("DistanceY", -1, 1, 6, 2, Q("147.5 mm")))
sketch6.addConstraint(Sketcher.Constraint("Distance", 0, Q("35.393398 mm")))
sketch6.addConstraint(Sketcher.Constraint("Distance", 4, Q("0.893398 mm")))
sketch6.addConstraint(Sketcher.Constraint("DistanceY", 2, 2, 8, 3, Q("23.612698 mm")))
sketch6.addConstraint(Sketcher.Constraint("DistanceX", 9, 3, 6, 2, Q("3.106602 mm")))
sketch6.addConstraint(Sketcher.Constraint("DistanceX", 8, 3, -1, 1, Q("14.79899 mm")))
sketch6.addConstraint(Sketcher.Constraint("DistanceY", -1, 1, 9, 3, Q("159.79899 mm")))
pad6 = body6.newObject("PartDesign::Pad", "Pad005")
pad6.Profile = sketch6
pad6.Length = 6
body7 = doc.addObject("PartDesign::Body", "Body006")

# Sketch on XY plane
sketch7 = body7.newObject("Sketcher::SketchObject", "Sketch006")
sketch7.AttachmentSupport = (doc.getObject("XY_Plane006"), [""])
sketch7.MapMode = "FlatFace"
sketch7.addGeometry(Part.LineSegment(V(233.4, -31.1, 0), V(205.9, -3.5, 0)), False)
sketch7.addGeometry(Part.LineSegment(V(205.9, -3.5, 0), V(226.6, -3.5, 0)), False)
sketch7.addGeometry(Part.ArcOfCircle(Part.Circle(V(227.1, -2.1, 0), V(0, 0, 1), 1.5), math.radians(-108), math.radians(-72)), False)
sketch7.addGeometry(Part.LineSegment(V(227.5, -3.5, 0), V(234.5, -3.5, 0)), False)
sketch7.addGeometry(Part.LineSegment(V(234.5, -3.5, 0), V(234.5, 14.5, 0)), False)
sketch7.addGeometry(Part.LineSegment(V(234.5, 14.5, 0), V(240.5, 14.5, 0)), False)
sketch7.addGeometry(Part.LineSegment(V(240.5, 14.5, 0), V(240.5, 7.1, 0)), False)
sketch7.addGeometry(Part.LineSegment(V(240.5, 7.1, 0), V(256.1, -8.4, 0)), False)
sketch7.addGeometry(Part.LineSegment(V(256.1, -8.4, 0), V(233.4, -31.1, 0)), False)
sketch7.addGeometry(Part.Circle(V(243.3, -7, 0), V(0, 0, 1), 1.5), False)
sketch7.addGeometry(Part.Circle(V(232, -18.3, 0), V(0, 0, 1), 1.5), False)
sketch7.addConstraint(Sketcher.Constraint("Coincident", 0, 2, 1, 1))
sketch7.addConstraint(Sketcher.Constraint("Coincident", 1, 2, 2, 1))
sketch7.addConstraint(Sketcher.Constraint("Coincident", 2, 2, 3, 1))
sketch7.addConstraint(Sketcher.Constraint("Coincident", 3, 2, 4, 1))
sketch7.addConstraint(Sketcher.Constraint("Coincident", 4, 2, 5, 1))
sketch7.addConstraint(Sketcher.Constraint("Coincident", 5, 2, 6, 1))
sketch7.addConstraint(Sketcher.Constraint("Coincident", 6, 2, 7, 1))
sketch7.addConstraint(Sketcher.Constraint("Coincident", 7, 2, 8, 1))
sketch7.addConstraint(Sketcher.Constraint("Coincident", 8, 2, 0, 1))
sketch7.addConstraint(Sketcher.Constraint("Horizontal", 1))
sketch7.addConstraint(Sketcher.Constraint("Horizontal", 3))
sketch7.addConstraint(Sketcher.Constraint("Vertical", 4))
sketch7.addConstraint(Sketcher.Constraint("Horizontal", 5))
sketch7.addConstraint(Sketcher.Constraint("Vertical", 6))
sketch7.addConstraint(Sketcher.Constraint("Equal", 2, 9))
sketch7.addConstraint(Sketcher.Constraint("Equal", 9, 10))
sketch7.addConstraint(Sketcher.Constraint("Parallel", 0, 7))
sketch7.addConstraint(Sketcher.Constraint("Perpendicular", 7, 8))
sketch7.addConstraint(Sketcher.Constraint("Horizontal", 1, 2, 2, 2))
sketch7.addConstraint(Sketcher.Constraint("Diameter", 9, Q("3 mm")))
sketch7.addConstraint(Sketcher.Constraint("DistanceX", 5, 1, 5, 2, Q("6 mm")))
sketch7.addConstraint(Sketcher.Constraint("DistanceY", 4, 1, 4, 2, Q("18 mm")))
sketch7.addConstraint(Sketcher.Constraint("Angle", 0, Q("135 deg")))
sketch7.addConstraint(Sketcher.Constraint("Distance", 8, Q("32 mm")))
sketch7.addConstraint(Sketcher.Constraint("DistanceY", 0, 2, -1, 1, Q("3.5 mm")))
sketch7.addConstraint(Sketcher.Constraint("DistanceX", -1, 1, 3, 2, Q("234.5 mm")))
sketch7.addConstraint(Sketcher.Constraint("DistanceX", 1, 2, 8, 2, Q("6.820199 mm")))
sketch7.addConstraint(Sketcher.Constraint("Distance", 7, Q("22.008622 mm")))
sketch7.addConstraint(Sketcher.Constraint("DistanceX", 1, 1, 1, 2, Q("20.742247 mm")))
sketch7.addConstraint(Sketcher.Constraint("DistanceX", 3, 1, 3, 2, Q("6.972695 mm")))
sketch7.addConstraint(Sketcher.Constraint("DistanceX", 10, 3, 9, 3, Q("11.313708 mm")))
sketch7.addConstraint(Sketcher.Constraint("DistanceY", 10, 3, 9, 3, Q("11.313708 mm")))
sketch7.addConstraint(Sketcher.Constraint("DistanceX", 0, 2, 9, 3, Q("37.461941 mm")))
sketch7.addConstraint(Sketcher.Constraint("DistanceY", 8, 2, 9, 3, Q("24.041631 mm")))
pad7 = body7.newObject("PartDesign::Pad", "Pad006")
pad7.Profile = sketch7
pad7.Length = 6
body8 = doc.addObject("PartDesign::Body", "Body007")

# Sketch on XY plane
sketch8 = body8.newObject("Sketcher::SketchObject", "Sketch007")
sketch8.AttachmentSupport = (doc.getObject("XY_Plane007"), [""])
sketch8.MapMode = "FlatFace"
sketch8.AttachmentOffset = App.Placement(V(0, 0, 6), App.Rotation())
sketch8.addGeometry(Part.LineSegment(V(233.4, -31.1, 0), V(205.9, -3.5, 0)), False)
sketch8.addGeometry(Part.LineSegment(V(205.9, -3.5, 0), V(226.6, -3.5, 0)), False)
sketch8.addGeometry(Part.ArcOfCircle(Part.Circle(V(227.1, -2.1, 0), V(0, 0, 1), 1.5), math.radians(-108), math.radians(-72)), False)
sketch8.addGeometry(Part.LineSegment(V(227.5, -3.5, 0), V(234.5, -3.5, 0)), False)
sketch8.addGeometry(Part.LineSegment(V(234.5, -3.5, 0), V(234.5, 14.5, 0)), False)
sketch8.addGeometry(Part.LineSegment(V(234.5, 14.5, 0), V(240.5, 14.5, 0)), False)
sketch8.addGeometry(Part.LineSegment(V(240.5, 14.5, 0), V(240.5, 7.1, 0)), False)
sketch8.addGeometry(Part.LineSegment(V(240.5, 7.1, 0), V(256.1, -8.4, 0)), False)
sketch8.addGeometry(Part.LineSegment(V(256.1, -8.4, 0), V(233.4, -31.1, 0)), False)
sketch8.addGeometry(Part.Circle(V(243.3, -7, 0), V(0, 0, 1), 1.5), False)
sketch8.addGeometry(Part.Circle(V(232, -18.3, 0), V(0, 0, 1), 1.5), False)
sketch8.addConstraint(Sketcher.Constraint("Coincident", 0, 2, 1, 1))
sketch8.addConstraint(Sketcher.Constraint("Coincident", 1, 2, 2, 1))
sketch8.addConstraint(Sketcher.Constraint("Coincident", 2, 2, 3, 1))
sketch8.addConstraint(Sketcher.Constraint("Coincident", 3, 2, 4, 1))
sketch8.addConstraint(Sketcher.Constraint("Coincident", 4, 2, 5, 1))
sketch8.addConstraint(Sketcher.Constraint("Coincident", 5, 2, 6, 1))
sketch8.addConstraint(Sketcher.Constraint("Coincident", 6, 2, 7, 1))
sketch8.addConstraint(Sketcher.Constraint("Coincident", 7, 2, 8, 1))
sketch8.addConstraint(Sketcher.Constraint("Coincident", 8, 2, 0, 1))
sketch8.addConstraint(Sketcher.Constraint("Horizontal", 1))
sketch8.addConstraint(Sketcher.Constraint("Horizontal", 3))
sketch8.addConstraint(Sketcher.Constraint("Vertical", 4))
sketch8.addConstraint(Sketcher.Constraint("Horizontal", 5))
sketch8.addConstraint(Sketcher.Constraint("Vertical", 6))
sketch8.addConstraint(Sketcher.Constraint("Equal", 2, 9))
sketch8.addConstraint(Sketcher.Constraint("Equal", 9, 10))
sketch8.addConstraint(Sketcher.Constraint("Parallel", 0, 7))
sketch8.addConstraint(Sketcher.Constraint("Perpendicular", 7, 8))
sketch8.addConstraint(Sketcher.Constraint("Horizontal", 1, 2, 2, 2))
sketch8.addConstraint(Sketcher.Constraint("Diameter", 9, Q("3 mm")))
sketch8.addConstraint(Sketcher.Constraint("DistanceX", 5, 1, 5, 2, Q("6 mm")))
sketch8.addConstraint(Sketcher.Constraint("DistanceY", 4, 1, 4, 2, Q("18 mm")))
sketch8.addConstraint(Sketcher.Constraint("Angle", 0, Q("135 deg")))
sketch8.addConstraint(Sketcher.Constraint("Distance", 8, Q("32 mm")))
sketch8.addConstraint(Sketcher.Constraint("DistanceY", 0, 2, -1, 1, Q("3.5 mm")))
sketch8.addConstraint(Sketcher.Constraint("DistanceX", -1, 1, 3, 2, Q("234.5 mm")))
sketch8.addConstraint(Sketcher.Constraint("DistanceX", 1, 2, 8, 2, Q("6.820199 mm")))
sketch8.addConstraint(Sketcher.Constraint("Distance", 7, Q("22.008622 mm")))
sketch8.addConstraint(Sketcher.Constraint("DistanceX", 1, 1, 1, 2, Q("20.742247 mm")))
sketch8.addConstraint(Sketcher.Constraint("DistanceX", 3, 1, 3, 2, Q("6.972695 mm")))
sketch8.addConstraint(Sketcher.Constraint("DistanceX", 10, 3, 9, 3, Q("11.313708 mm")))
sketch8.addConstraint(Sketcher.Constraint("DistanceY", 10, 3, 9, 3, Q("11.313708 mm")))
sketch8.addConstraint(Sketcher.Constraint("DistanceX", 0, 2, 9, 3, Q("37.461941 mm")))
sketch8.addConstraint(Sketcher.Constraint("DistanceY", 8, 2, 9, 3, Q("24.041631 mm")))
pad8 = body8.newObject("PartDesign::Pad", "Pad007")
pad8.Profile = sketch8
pad8.Length = 6

doc.recompute()
